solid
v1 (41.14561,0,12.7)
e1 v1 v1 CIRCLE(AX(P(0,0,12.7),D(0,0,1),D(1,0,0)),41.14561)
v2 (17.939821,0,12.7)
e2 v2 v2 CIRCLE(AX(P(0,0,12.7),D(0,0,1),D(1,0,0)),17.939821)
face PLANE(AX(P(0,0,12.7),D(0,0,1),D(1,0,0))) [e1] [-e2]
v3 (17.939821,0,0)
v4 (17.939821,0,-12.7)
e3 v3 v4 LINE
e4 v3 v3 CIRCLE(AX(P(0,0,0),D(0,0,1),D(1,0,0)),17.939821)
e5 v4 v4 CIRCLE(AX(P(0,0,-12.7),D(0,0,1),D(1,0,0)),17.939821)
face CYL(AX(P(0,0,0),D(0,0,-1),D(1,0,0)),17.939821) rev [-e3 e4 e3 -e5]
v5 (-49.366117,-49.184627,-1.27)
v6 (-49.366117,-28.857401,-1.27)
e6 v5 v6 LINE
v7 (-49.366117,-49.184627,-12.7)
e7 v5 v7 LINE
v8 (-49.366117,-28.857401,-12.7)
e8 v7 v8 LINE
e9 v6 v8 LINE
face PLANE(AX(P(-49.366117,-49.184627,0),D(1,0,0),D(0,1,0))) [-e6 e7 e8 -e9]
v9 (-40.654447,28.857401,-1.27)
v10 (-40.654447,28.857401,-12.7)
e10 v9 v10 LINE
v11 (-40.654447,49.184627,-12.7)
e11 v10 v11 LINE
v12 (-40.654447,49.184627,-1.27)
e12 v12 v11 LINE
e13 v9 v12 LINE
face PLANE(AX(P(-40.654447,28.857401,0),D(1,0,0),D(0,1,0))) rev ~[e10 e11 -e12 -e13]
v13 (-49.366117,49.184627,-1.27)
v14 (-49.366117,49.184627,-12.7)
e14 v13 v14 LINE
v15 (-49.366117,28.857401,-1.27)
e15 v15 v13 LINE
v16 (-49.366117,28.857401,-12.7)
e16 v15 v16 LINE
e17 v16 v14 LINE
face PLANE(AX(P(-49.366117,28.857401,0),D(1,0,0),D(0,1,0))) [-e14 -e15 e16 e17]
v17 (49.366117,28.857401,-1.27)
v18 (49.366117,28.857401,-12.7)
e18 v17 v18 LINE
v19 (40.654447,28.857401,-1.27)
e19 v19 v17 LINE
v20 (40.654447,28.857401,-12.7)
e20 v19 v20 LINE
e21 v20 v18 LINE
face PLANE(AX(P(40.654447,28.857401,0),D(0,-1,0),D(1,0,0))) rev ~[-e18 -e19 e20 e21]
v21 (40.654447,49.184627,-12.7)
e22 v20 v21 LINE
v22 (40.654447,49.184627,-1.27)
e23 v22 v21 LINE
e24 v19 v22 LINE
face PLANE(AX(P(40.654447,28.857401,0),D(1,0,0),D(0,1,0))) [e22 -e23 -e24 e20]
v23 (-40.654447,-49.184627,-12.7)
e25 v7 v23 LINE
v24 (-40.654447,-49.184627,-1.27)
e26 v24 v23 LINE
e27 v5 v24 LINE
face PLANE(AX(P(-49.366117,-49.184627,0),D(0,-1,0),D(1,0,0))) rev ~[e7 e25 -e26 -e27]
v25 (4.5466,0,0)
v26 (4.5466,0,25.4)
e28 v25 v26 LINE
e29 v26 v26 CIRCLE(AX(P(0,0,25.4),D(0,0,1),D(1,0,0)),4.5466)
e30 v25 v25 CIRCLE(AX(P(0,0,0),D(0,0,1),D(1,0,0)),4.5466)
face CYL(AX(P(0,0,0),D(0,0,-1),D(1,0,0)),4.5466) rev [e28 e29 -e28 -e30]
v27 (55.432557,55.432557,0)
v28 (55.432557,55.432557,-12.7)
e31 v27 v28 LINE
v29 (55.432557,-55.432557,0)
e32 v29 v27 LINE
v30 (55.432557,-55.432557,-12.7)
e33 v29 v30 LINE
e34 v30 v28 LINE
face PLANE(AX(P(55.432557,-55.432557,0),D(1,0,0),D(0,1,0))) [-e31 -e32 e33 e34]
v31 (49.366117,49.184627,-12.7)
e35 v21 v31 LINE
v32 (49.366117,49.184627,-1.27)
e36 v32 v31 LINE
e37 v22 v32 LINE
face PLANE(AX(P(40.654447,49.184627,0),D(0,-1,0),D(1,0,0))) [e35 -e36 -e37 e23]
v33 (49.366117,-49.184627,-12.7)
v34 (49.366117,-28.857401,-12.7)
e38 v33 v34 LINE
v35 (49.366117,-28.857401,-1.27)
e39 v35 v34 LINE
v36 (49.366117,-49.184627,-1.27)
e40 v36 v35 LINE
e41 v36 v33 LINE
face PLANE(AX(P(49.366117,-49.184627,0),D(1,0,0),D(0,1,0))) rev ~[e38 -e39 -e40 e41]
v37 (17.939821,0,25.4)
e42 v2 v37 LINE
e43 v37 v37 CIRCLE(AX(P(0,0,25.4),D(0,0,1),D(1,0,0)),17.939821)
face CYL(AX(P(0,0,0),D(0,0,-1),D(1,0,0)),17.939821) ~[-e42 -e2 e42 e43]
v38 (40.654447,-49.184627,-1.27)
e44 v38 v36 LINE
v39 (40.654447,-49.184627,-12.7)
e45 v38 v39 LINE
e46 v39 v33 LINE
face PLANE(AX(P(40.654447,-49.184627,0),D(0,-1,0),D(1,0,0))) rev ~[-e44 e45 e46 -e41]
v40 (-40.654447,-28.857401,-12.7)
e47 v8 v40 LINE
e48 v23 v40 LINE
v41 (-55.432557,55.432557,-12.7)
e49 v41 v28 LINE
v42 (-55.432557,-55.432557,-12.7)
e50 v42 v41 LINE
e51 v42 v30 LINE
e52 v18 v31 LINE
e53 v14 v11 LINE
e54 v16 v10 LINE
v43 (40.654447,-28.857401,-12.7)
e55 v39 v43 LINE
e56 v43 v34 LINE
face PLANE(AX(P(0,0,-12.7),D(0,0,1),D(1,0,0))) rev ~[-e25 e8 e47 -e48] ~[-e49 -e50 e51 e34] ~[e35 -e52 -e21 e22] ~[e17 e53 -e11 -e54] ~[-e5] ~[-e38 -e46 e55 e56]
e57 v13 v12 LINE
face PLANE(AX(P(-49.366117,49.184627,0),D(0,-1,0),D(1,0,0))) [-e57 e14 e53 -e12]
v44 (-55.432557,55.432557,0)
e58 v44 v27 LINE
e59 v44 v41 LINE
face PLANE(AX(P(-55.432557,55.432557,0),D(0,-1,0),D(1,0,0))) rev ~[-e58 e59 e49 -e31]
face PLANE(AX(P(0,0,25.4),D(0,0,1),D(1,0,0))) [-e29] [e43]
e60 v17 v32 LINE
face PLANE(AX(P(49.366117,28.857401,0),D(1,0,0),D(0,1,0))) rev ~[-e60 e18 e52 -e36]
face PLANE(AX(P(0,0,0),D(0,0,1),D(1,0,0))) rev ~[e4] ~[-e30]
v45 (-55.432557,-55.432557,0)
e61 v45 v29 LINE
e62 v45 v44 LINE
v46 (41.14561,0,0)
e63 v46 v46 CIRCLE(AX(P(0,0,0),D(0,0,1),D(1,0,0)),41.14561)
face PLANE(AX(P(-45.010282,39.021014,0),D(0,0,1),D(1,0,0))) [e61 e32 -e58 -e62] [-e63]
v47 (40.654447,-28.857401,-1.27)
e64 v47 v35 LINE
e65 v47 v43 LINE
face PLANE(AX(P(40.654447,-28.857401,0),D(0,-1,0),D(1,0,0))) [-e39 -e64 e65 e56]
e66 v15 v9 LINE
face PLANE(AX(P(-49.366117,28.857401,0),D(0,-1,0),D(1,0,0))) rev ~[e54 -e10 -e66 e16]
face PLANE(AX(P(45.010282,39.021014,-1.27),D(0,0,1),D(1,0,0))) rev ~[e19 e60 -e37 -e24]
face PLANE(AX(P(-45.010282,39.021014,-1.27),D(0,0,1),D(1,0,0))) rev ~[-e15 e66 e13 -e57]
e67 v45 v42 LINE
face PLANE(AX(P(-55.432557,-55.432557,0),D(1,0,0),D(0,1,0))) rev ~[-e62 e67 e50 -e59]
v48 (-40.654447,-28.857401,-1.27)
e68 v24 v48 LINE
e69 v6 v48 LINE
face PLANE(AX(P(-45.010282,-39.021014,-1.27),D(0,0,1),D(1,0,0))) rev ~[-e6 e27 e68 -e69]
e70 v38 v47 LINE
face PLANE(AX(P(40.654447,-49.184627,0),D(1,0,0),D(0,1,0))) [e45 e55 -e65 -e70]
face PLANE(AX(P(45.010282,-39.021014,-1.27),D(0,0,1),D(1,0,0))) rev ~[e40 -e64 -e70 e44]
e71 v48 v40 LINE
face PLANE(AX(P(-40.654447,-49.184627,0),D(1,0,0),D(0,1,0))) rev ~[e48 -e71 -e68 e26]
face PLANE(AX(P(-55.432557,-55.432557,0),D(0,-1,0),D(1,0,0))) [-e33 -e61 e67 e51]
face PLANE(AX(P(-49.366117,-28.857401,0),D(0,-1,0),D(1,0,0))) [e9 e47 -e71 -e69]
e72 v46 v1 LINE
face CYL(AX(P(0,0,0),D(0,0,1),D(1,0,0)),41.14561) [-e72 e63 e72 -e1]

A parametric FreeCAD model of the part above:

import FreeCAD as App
import Part
import Sketcher
Q = App.Units.Quantity


def add_polygon(sketch, points):
    """Adds a closed chain of lines whose ends are joined by coincident constraints."""
    first, n = sketch.GeometryCount, len(points)
    for a, b in zip(points, points[1:] + points[:1]):
        sketch.addGeometry(Part.LineSegment(App.Vector(*a, 0), App.Vector(*b, 0)), False)
    for i in range(n):
        sketch.addConstraint(Sketcher.Constraint("Coincident", first + i, 2, first + (i + 1) % n, 1))

doc = App.newDocument("Part")
params = doc.addObject("Spreadsheet::Sheet", "Params")
for row, (alias, value) in enumerate([
    ("sketch1_diameter", "0.358 in"),
    ("pad1_length", "1 in"),
    ("pad2_length", "1 in"),
    ("pad3_length", "0.5 in"),
    ("pad4_length", "0.05 in"),
], start=1):
    params.set(f"A{row}", alias)
    params.set(f"B{row}", "=" + value)
    params.setAlias(f"B{row}", alias)

body = doc.addObject("PartDesign::Body", "Body")

sketch1 = body.newObject("Sketcher::SketchObject", "Sketch")
sketch1.AttachmentSupport = (doc.getObject("XY_Plane"), [""])
sketch1.MapMode = "FlatFace"
sketch1.addGeometry([
    Part.Circle(App.Vector(0, 0, 0), App.Vector(0, 0, 1), 17.9),
    Part.Circle(App.Vector(0, 0, 0), App.Vector(0, 0, 1), 4.5),
], False)
sketch1.addConstraint([
    Sketcher.Constraint("Coincident", 0, 3, -1, 1),
    Sketcher.Constraint("Coincident", 1, 3, -1, 1),
    Sketcher.Constraint("Diameter", 1, Q("0.358 in")),
    Sketcher.Constraint("Diameter", 0, Q("35.879642 mm")),
])
sketch1.setExpression("Constraints[2]", "Params.sketch1_diameter")
pad1 = body.newObject("PartDesign::Pad", "Pad")
pad1.Profile = sketch1
pad1.setExpression("Length", "Params.pad1_length")

sketch2 = body.newObject("Sketcher::SketchObject", "Sketch001")
sketch2.AttachmentSupport = (doc.getObject("XY_Plane"), [""])
sketch2.MapMode = "FlatFace"
sketch2.addGeometry([
    Part.Circle(App.Vector(0, 0, 0), App.Vector(0, 0, 1), 41),
    Part.Circle(App.Vector(0, 0, 0), App.Vector(0, 0, 1), 18),
], False)
sketch2.addConstraint([
    Sketcher.Constraint("Coincident", 0, 3, -1, 1),
    Sketcher.Constraint("Coincident", 1, 3, -1, 1),
    Sketcher.Constraint("Diameter", 0, Q("82.29122 mm")),
    Sketcher.Constraint("Diameter", 1, Q("35.879642 mm")),
])
pad2 = body.newObject("PartDesign::Pad", "Pad001")
pad2.Profile = sketch2
pad2.setExpression("Length", "Params.pad2_length")
pad2.Midplane = True

sketch3 = body.newObject("Sketcher::SketchObject", "Sketch002")
sketch3.AttachmentSupport = (doc.getObject("XY_Plane"), [""])
sketch3.MapMode = "FlatFace"
add_polygon(sketch3, [(-55, 55), (-55, -55), (55, -55), (55, 55)])
add_polygon(sketch3, [(-41, -49), (-49, -49), (-49, -29), (-41, -29)])
add_polygon(sketch3, [(49, -49), (41, -49), (41, -29), (49, -29)])
add_polygon(sketch3, [(-41, 29), (-49, 29), (-49, 49), (-41, 49)])
sketch3.addGeometry(Part.Circle(App.Vector(0, 0, 0), App.Vector(0, 0, 1), 41), False)
add_polygon(sketch3, [(49, 29), (41, 29), (41, 49), (49, 49)])
sketch3.addConstraint([
    Sketcher.Constraint("Vertical", 0),
    Sketcher.Constraint("Horizontal", 1),
    Sketcher.Constraint("Vertical", 2),
    Sketcher.Constraint("Horizontal", 3),
    Sketcher.Constraint("Horizontal", 4),
    Sketcher.Constraint("Vertical", 5),
    Sketcher.Constraint("Horizontal", 6),
    Sketcher.Constraint("Vertical", 7),
    Sketcher.Constraint("Horizontal", 8),
    Sketcher.Constraint("Vertical", 9),
    Sketcher.Constraint("Horizontal", 10),
    Sketcher.Constraint("Vertical", 11),
    Sketcher.Constraint("Horizontal", 12),
    Sketcher.Constraint("Vertical", 13),
    Sketcher.Constraint("Horizontal", 14),
    Sketcher.Constraint("Vertical", 15),
    Sketcher.Constraint("Horizontal", 17),
    Sketcher.Constraint("Vertical", 18),
    Sketcher.Constraint("Horizontal", 19),
    Sketcher.Constraint("Vertical", 20),
    Sketcher.Constraint("Coincident", 16, 3, -1, 1),
    Sketcher.Constraint("Symmetric", 0, 2, 2, 2, -1, 1),
    Sketcher.Constraint("Symmetric", 10, 2, 12, 2, -1, 1),
    Sketcher.Constraint("Symmetric", 8, 2, 14, 2, -1, 1),
    Sketcher.Constraint("Symmetric", 6, 2, 17, 2, -1, 1),
    Sketcher.Constraint("Symmetric", 4, 2, 19, 2, -1, 1),
    Sketcher.Constraint("Symmetric", 7, 2, 8, 2, -2),
    Sketcher.Constraint("Symmetric", 5, 2, 10, 2, -2),
    Sketcher.Constraint("Equal", 3, 0),
    Sketcher.Constraint("Diameter", 16, Q("82.29122 mm")),
    Sketcher.Constraint("DistanceX", 4, 2, 4, 1, Q("8.71167 mm")),
    Sketcher.Constraint("DistanceY", 5, 2, -1, 1, Q("28.857401 mm")),
    Sketcher.Constraint("DistanceX", 1, 1, 1, 2, Q("110.865114 mm")),
    Sketcher.Constraint("DistanceY", 5, 1, 5, 2, Q("20.327227 mm")),
    Sketcher.Constraint("DistanceX", 0, 2, 4, 2, Q("6.06644 mm")),
])
pad3 = body.newObject("PartDesign::Pad", "Pad002")
pad3.Profile = sketch3
pad3.setExpression("Length", "Params.pad3_length")
pad3.Reversed = True

sketch4 = body.newObject("Sketcher::SketchObject", "Sketch003")
sketch4.AttachmentSupport = (doc.getObject("XY_Plane"), [""])
sketch4.MapMode = "FlatFace"
add_polygon(sketch4, [(-49, 49), (-49, 29), (-41, 29), (-41, 49)])
add_polygon(sketch4, [(41, 49), (41, 29), (49, 29), (49, 49)])
add_polygon(sketch4, [(41, -29), (41, -49), (49, -49), (49, -29)])
add_polygon(sketch4, [(-49, -29), (-49, -49), (-41, -49), (-41, -29)])
sketch4.addConstraint([
    Sketcher.Constraint("Vertical", 0),
    Sketcher.Constraint("Horizontal", 1),
    Sketcher.Constraint("Vertical", 2),
    Sketcher.Constraint("Horizontal", 3),
    Sketcher.Constraint("Vertical", 4),
    Sketcher.Constraint("Horizontal", 5),
    Sketcher.Constraint("Vertical", 6),
    Sketcher.Constraint("Horizontal", 7),
    Sketcher.Constraint("Vertical", 8),
    Sketcher.Constraint("Horizontal", 9),
    Sketcher.Constraint("Vertical", 10),
    Sketcher.Constraint("Horizontal", 11),
    Sketcher.Constraint("Vertical", 12),
    Sketcher.Constraint("Horizontal", 13),
    Sketcher.Constraint("Vertical", 14),
    Sketcher.Constraint("Horizontal", 15),
    Sketcher.Constraint("Symmetric", 2, 2, 8, 2, -1, 1),
    Sketcher.Constraint("Symmetric", 0, 2, 10, 2, -1, 1),
    Sketcher.Constraint("Symmetric", 6, 2, 12, 2, -1, 1),
    Sketcher.Constraint("Symmetric", 4, 2, 14, 2, -1, 1),
    Sketcher.Constraint("Symmetric", 1, 2, 4, 2, -2),
    Sketcher.Constraint("Symmetric", 3, 2, 6, 2, -2),
    Sketcher.Constraint("DistanceX", 1, 1, 1, 2, Q("8.71167 mm")),
    Sketcher.Constraint("DistanceY", -1, 1, 0, 2, Q("28.857401 mm")),
    Sketcher.Constraint("DistanceY", 0, 2, 0, 1, Q("20.327227 mm")),
    Sketcher.Constraint("DistanceX", 0, 2, -1, 1, Q("49.366117 mm")),
])
pad4 = body.newObject("PartDesign::Pad", "Pad003")
pad4.Profile = sketch4
pad4.setExpression("Length", "Params.pad4_length")
pad4.Reversed = True

doc.recompute()
